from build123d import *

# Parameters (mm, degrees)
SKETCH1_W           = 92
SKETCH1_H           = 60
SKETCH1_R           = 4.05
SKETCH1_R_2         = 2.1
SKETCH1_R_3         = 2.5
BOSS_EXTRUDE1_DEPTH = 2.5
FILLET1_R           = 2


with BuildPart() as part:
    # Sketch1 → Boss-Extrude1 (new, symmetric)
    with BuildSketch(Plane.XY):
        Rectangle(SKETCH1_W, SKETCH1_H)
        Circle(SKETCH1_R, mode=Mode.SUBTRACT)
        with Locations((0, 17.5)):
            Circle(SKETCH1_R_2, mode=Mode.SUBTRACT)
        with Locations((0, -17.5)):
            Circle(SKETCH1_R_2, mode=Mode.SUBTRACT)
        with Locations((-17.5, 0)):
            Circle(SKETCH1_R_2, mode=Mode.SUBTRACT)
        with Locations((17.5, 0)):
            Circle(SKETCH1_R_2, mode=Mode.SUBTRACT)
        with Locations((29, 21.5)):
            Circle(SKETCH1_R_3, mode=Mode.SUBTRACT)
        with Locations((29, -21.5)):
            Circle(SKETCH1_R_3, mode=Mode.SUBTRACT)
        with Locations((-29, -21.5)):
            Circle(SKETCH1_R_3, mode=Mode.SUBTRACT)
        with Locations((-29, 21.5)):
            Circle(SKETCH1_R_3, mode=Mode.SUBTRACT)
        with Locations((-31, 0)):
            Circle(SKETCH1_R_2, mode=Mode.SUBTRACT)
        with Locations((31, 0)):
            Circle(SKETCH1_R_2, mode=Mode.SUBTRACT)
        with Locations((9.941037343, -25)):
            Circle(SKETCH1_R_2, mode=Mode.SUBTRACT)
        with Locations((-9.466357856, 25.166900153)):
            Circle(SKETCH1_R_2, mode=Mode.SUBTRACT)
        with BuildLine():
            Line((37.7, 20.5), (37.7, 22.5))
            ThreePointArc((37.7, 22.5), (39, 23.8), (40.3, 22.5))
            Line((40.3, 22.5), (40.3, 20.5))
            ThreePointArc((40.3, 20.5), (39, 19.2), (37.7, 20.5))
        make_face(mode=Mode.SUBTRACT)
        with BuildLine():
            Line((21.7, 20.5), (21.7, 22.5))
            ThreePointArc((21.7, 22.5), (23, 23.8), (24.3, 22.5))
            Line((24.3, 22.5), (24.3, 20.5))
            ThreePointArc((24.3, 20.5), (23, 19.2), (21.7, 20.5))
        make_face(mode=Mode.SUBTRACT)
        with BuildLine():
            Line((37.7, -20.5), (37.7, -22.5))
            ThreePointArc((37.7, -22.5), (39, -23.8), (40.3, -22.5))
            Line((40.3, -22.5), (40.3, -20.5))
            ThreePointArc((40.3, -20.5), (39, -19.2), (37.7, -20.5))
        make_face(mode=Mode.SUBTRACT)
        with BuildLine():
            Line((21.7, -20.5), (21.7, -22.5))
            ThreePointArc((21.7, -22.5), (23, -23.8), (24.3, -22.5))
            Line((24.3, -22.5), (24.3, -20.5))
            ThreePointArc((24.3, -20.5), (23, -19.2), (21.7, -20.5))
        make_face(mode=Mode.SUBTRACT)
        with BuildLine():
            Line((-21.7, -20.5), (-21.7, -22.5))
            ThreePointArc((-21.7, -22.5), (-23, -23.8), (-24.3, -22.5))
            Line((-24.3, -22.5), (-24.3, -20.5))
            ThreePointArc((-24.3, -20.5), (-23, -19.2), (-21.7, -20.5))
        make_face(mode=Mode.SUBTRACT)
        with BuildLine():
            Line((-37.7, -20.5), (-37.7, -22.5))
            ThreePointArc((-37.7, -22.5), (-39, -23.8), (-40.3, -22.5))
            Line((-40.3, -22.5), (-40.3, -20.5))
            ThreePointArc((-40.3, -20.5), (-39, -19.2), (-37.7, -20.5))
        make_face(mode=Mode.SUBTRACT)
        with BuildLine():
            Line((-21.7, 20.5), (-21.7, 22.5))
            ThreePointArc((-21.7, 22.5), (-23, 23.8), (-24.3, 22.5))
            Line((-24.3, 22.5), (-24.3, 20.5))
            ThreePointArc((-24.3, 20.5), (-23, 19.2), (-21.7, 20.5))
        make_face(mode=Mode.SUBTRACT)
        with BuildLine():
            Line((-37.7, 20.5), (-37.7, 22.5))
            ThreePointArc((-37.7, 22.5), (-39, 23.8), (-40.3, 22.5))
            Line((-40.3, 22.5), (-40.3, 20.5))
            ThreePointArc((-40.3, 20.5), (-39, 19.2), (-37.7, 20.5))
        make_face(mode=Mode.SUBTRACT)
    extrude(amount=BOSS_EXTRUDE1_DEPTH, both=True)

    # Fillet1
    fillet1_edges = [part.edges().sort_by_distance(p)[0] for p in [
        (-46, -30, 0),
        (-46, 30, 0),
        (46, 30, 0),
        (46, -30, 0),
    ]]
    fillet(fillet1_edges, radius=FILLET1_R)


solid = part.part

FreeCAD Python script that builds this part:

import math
import FreeCAD as App
import Part
import Sketcher


def edges_at(feature, points):
    """Names of the edges that pass closest to the given points."""
    edges = feature.Shape.Edges
    near = lambda p: min(range(len(edges)), key=lambda i: edges[i].distToShape(Part.Vertex(*p))[0])
    return sorted({f"Edge{near(p) + 1}" for p in points})


def add_polygon(sketch, points):
    """Adds a closed chain of lines whose ends are joined by coincident constraints."""
    first, n = sketch.GeometryCount, len(points)
    for a, b in zip(points, points[1:] + points[:1]):
        sketch.addGeometry(Part.LineSegment(App.Vector(*a, 0), App.Vector(*b, 0)), False)
    for i in range(n):
        sketch.addConstraint(Sketcher.Constraint("Coincident", first + i, 2, first + (i + 1) % n, 1))

doc = App.newDocument("Part")
body = doc.addObject("PartDesign::Body", "Body")

sketch1 = body.newObject("Sketcher::SketchObject", "Sketch")
sketch1.AttachmentSupport = (doc.getObject("XY_Plane"), [""])
sketch1.MapMode = "FlatFace"
add_polygon(sketch1, [(-46, 30), (-46, -30), (46, -30), (46, 30)])
sketch1.addGeometry(Part.ArcOfCircle(Part.Circle(App.Vector(-39, -20.5, 0), App.Vector(0, 0, 1), 1.3), math.radians(0), math.radians(180)), False)
sketch1.addGeometry(Part.LineSegment(App.Vector(-37.7, -20.5, 0), App.Vector(-37.7, -22.5, 0)), False)
sketch1.addGeometry(Part.ArcOfCircle(Part.Circle(App.Vector(-39, -22.5, 0), App.Vector(0, 0, 1), 1.3), math.radians(180), math.radians(360)), False)
sketch1.addGeometry(Part.LineSegment(App.Vector(-40.3, -22.5, 0), App.Vector(-40.3, -20.5, 0)), False)
sketch1.addGeometry(Part.Circle(App.Vector(-29, -21.5, 0), App.Vector(0, 0, 1), 2.5), False)
sketch1.addGeometry(Part.ArcOfCircle(Part.Circle(App.Vector(-23, -20.5, 0), App.Vector(0, 0, 1), 1.3), math.radians(0), math.radians(180)), False)
sketch1.addGeometry(Part.LineSegment(App.Vector(-21.7, -20.5, 0), App.Vector(-21.7, -22.5, 0)), False)
sketch1.addGeometry(Part.ArcOfCircle(Part.Circle(App.Vector(-23, -22.5, 0), App.Vector(0, 0, 1), 1.3), math.radians(180), math.radians(360)), False)
sketch1.addGeometry(Part.LineSegment(App.Vector(-24.3, -22.5, 0), App.Vector(-24.3, -20.5, 0)), False)
sketch1.addGeometry(Part.Circle(App.Vector(-31, 0, 0), App.Vector(0, 0, 1), 2.1), False)
sketch1.addGeometry(Part.Circle(App.Vector(-17.5, 0, 0), App.Vector(0, 0, 1), 2.1), False)
sketch1.addGeometry(Part.Circle(App.Vector(9.941037, -25, 0), App.Vector(0, 0, 1), 2.1), False)
sketch1.addGeometry(Part.Circle(App.Vector(0, -17.5, 0), App.Vector(0, 0, 1), 2.1), False)
sketch1.addGeometry(Part.LineSegment(App.Vector(21.7, -22.5, 0), App.Vector(21.7, -20.5, 0)), False)
sketch1.addGeometry(Part.ArcOfCircle(Part.Circle(App.Vector(23, -20.5, 0), App.Vector(0, 0, 1), 1.3), math.radians(0), math.radians(180)), False)
sketch1.addGeometry(Part.LineSegment(App.Vector(24.3, -20.5, 0), App.Vector(24.3, -22.5, 0)), False)
sketch1.addGeometry(Part.ArcOfCircle(Part.Circle(App.Vector(23, -22.5, 0), App.Vector(0, 0, 1), 1.3), math.radians(180), math.radians(360)), False)
sketch1.addGeometry(Part.Circle(App.Vector(29, -21.5, 0), App.Vector(0, 0, 1), 2.5), False)
sketch1.addGeometry(Part.LineSegment(App.Vector(37.7, -22.5, 0), App.Vector(37.7, -20.5, 0)), False)
sketch1.addGeometry(Part.ArcOfCircle(Part.Circle(App.Vector(39, -20.5, 0), App.Vector(0, 0, 1), 1.3), math.radians(0), math.radians(180)), False)
sketch1.addGeometry(Part.LineSegment(App.Vector(40.3, -20.5, 0), App.Vector(40.3, -22.5, 0)), False)
sketch1.addGeometry(Part.ArcOfCircle(Part.Circle(App.Vector(39, -22.5, 0), App.Vector(0, 0, 1), 1.3), math.radians(180), math.radians(360)), False)
sketch1.addGeometry(Part.Circle(App.Vector(0, 0, 0), App.Vector(0, 0, 1), 4.05), False)
sketch1.addGeometry(Part.Circle(App.Vector(17.5, 0, 0), App.Vector(0, 0, 1), 2.1), False)
sketch1.addGeometry(Part.Circle(App.Vector(31, 0, 0), App.Vector(0, 0, 1), 2.1), False)
sketch1.addGeometry(Part.LineSegment(App.Vector(-37.7, 22.5, 0), App.Vector(-37.7, 20.5, 0)), False)
sketch1.addGeometry(Part.ArcOfCircle(Part.Circle(App.Vector(-39, 20.5, 0), App.Vector(0, 0, 1), 1.3), math.radians(180), math.radians(360)), False)
sketch1.addGeometry(Part.LineSegment(App.Vector(-40.3, 20.5, 0), App.Vector(-40.3, 22.5, 0)), False)
sketch1.addGeometry(Part.ArcOfCircle(Part.Circle(App.Vector(-39, 22.5, 0), App.Vector(0, 0, 1), 1.3), math.radians(0), math.radians(180)), False)
sketch1.addGeometry(Part.Circle(App.Vector(-29, 21.5, 0), App.Vector(0, 0, 1), 2.5), False)
sketch1.addGeometry(Part.LineSegment(App.Vector(-21.7, 22.5, 0), App.Vector(-21.7, 20.5, 0)), False)
sketch1.addGeometry(Part.ArcOfCircle(Part.Circle(App.Vector(-23, 20.5, 0), App.Vector(0, 0, 1), 1.3), math.radians(180), math.radians(360)), False)
sketch1.addGeometry(Part.LineSegment(App.Vector(-24.3, 20.5, 0), App.Vector(-24.3, 22.5, 0)), False)
sketch1.addGeometry(Part.ArcOfCircle(Part.Circle(App.Vector(-23, 22.5, 0), App.Vector(0, 0, 1), 1.3), math.radians(0), math.radians(180)), False)
sketch1.addGeometry(Part.Circle(App.Vector(-9.466358, 25.1669, 0), App.Vector(0, 0, 1), 2.1), False)
sketch1.addGeometry(Part.Circle(App.Vector(0, 17.5, 0), App.Vector(0, 0, 1), 2.1), False)
sketch1.addGeometry(Part.ArcOfCircle(Part.Circle(App.Vector(23, 20.5, 0), App.Vector(0, 0, 1), 1.3), math.radians(180), math.radians(360)), False)
sketch1.addGeometry(Part.LineSegment(App.Vector(21.7, 20.5, 0), App.Vector(21.7, 22.5, 0)), False)
sketch1.addGeometry(Part.ArcOfCircle(Part.Circle(App.Vector(23, 22.5, 0), App.Vector(0, 0, 1), 1.3), math.radians(0), math.radians(180)), False)
sketch1.addGeometry(Part.LineSegment(App.Vector(24.3, 22.5, 0), App.Vector(24.3, 20.5, 0)), False)
sketch1.addGeometry(Part.Circle(App.Vector(29, 21.5, 0), App.Vector(0, 0, 1), 2.5), False)
sketch1.addGeometry(Part.ArcOfCircle(Part.Circle(App.Vector(39, 20.5, 0), App.Vector(0, 0, 1), 1.3), math.radians(180), math.radians(360)), False)
sketch1.addGeometry(Part.LineSegment(App.Vector(37.7, 20.5, 0), App.Vector(37.7, 22.5, 0)), False)
sketch1.addGeometry(Part.ArcOfCircle(Part.Circle(App.Vector(39, 22.5, 0), App.Vector(0, 0, 1), 1.3), math.radians(0), math.radians(180)), False)
sketch1.addGeometry(Part.LineSegment(App.Vector(40.3, 22.5, 0), App.Vector(40.3, 20.5, 0)), False)
sketch1.addConstraint([
    Sketcher.Constraint("Tangent", 4, 1, 5, 1),
    Sketcher.Constraint("Tangent", 5, 2, 6, 2),
    Sketcher.Constraint("Tangent", 6, 1, 7, 1),
    Sketcher.Constraint("Tangent", 7, 2, 4, 2),
    Sketcher.Constraint("Tangent", 9, 1, 10, 1),
    Sketcher.Constraint("Tangent", 10, 2, 11, 2),
    Sketcher.Constraint("Tangent", 11, 1, 12, 1),
    Sketcher.Constraint("Tangent", 12, 2, 9, 2),
    Sketcher.Constraint("Tangent", 17, 2, 18, 2),
    Sketcher.Constraint("Tangent", 18, 1, 19, 1),
    Sketcher.Constraint("Tangent", 19, 2, 20, 2),
    Sketcher.Constraint("Tangent", 20, 1, 17, 1),
    Sketcher.Constraint("Tangent", 22, 2, 23, 2),
    Sketcher.Constraint("Tangent", 23, 1, 24, 1),
    Sketcher.Constraint("Tangent", 24, 2, 25, 2),
    Sketcher.Constraint("Tangent", 25, 1, 22, 1),
    Sketcher.Constraint("Tangent", 29, 2, 30, 2),
    Sketcher.Constraint("Tangent", 30, 1, 31, 1),
    Sketcher.Constraint("Tangent", 31, 2, 32, 2),
    Sketcher.Constraint("Tangent", 32, 1, 29, 1),
    Sketcher.Constraint("Tangent", 34, 2, 35, 2),
    Sketcher.Constraint("Tangent", 35, 1, 36, 1),
    Sketcher.Constraint("Tangent", 36, 2, 37, 2),
    Sketcher.Constraint("Tangent", 37, 1, 34, 1),
    Sketcher.Constraint("Tangent", 40, 1, 41, 1),
    Sketcher.Constraint("Tangent", 41, 2, 42, 2),
    Sketcher.Constraint("Tangent", 42, 1, 43, 1),
    Sketcher.Constraint("Tangent", 43, 2, 40, 2),
    Sketcher.Constraint("Tangent", 45, 1, 46, 1),
    Sketcher.Constraint("Tangent", 46, 2, 47, 2),
    Sketcher.Constraint("Tangent", 47, 1, 48, 1),
    Sketcher.Constraint("Tangent", 48, 2, 45, 2),
    Sketcher.Constraint("Vertical", 0),
    Sketcher.Constraint("Horizontal", 1),
    Sketcher.Constraint("Vertical", 2),
    Sketcher.Constraint("Horizontal", 3),
    Sketcher.Constraint("Vertical", 5),
    Sketcher.Constraint("Vertical", 7),
    Sketcher.Constraint("Vertical", 10),
    Sketcher.Constraint("Vertical", 12),
    Sketcher.Constraint("Vertical", 17),
    Sketcher.Constraint("Vertical", 19),
    Sketcher.Constraint("Vertical", 22),
    Sketcher.Constraint("Vertical", 24),
    Sketcher.Constraint("Vertical", 29),
    Sketcher.Constraint("Vertical", 31),
    Sketcher.Constraint("Vertical", 34),
    Sketcher.Constraint("Vertical", 36),
    Sketcher.Constraint("Vertical", 41),
    Sketcher.Constraint("Vertical", 43),
    Sketcher.Constraint("Vertical", 46),
    Sketcher.Constraint("Vertical", 48),
    Sketcher.Constraint("Coincident", 26, 3, -1, 1),
    Sketcher.Constraint("Equal", 6, 9),
    Sketcher.Constraint("Equal", 13, 14),
    Sketcher.Constraint("Equal", 14, 15),
    Sketcher.Constraint("Equal", 15, 16),
    Sketcher.Constraint("Equal", 11, 18),
    Sketcher.Constraint("Equal", 8, 21),
    Sketcher.Constraint("Equal", 20, 23),
    Sketcher.Constraint("Equal", 16, 27),
    Sketcher.Constraint("Equal", 27, 28),
    Sketcher.Constraint("Equal", 25, 30),
    Sketcher.Constraint("Equal", 21, 33),
    Sketcher.Constraint("Equal", 32, 35),
    Sketcher.Constraint("Equal", 28, 38),
    Sketcher.Constraint("Equal", 38, 39),
    Sketcher.Constraint("Equal", 37, 40),
    Sketcher.Constraint("Equal", 33, 44),
    Sketcher.Constraint("Equal", 42, 45),
    Sketcher.Constraint("Symmetric", 14, 3, 27, 3, -1, 1),
    Sketcher.Constraint("Symmetric", 13, 3, 28, 3, -1, 1),
    Sketcher.Constraint("Symmetric", 23, 3, 30, 3, -1, 1),
    Sketcher.Constraint("Symmetric", 21, 3, 33, 3, -1, 1),
    Sketcher.Constraint("Symmetric", 18, 3, 35, 3, -1, 1),
    Sketcher.Constraint("Symmetric", 16, 3, 39, 3, -1, 1),
    Sketcher.Constraint("Symmetric", 9, 3, 40, 3, -1, 1),
    Sketcher.Constraint("Symmetric", 8, 3, 44, 3, -1, 1),
    Sketcher.Constraint("Symmetric", 4, 3, 45, 3, -1, 1),
    Sketcher.Constraint("Symmetric", 0, 2, 2, 2, -1, 1),
    Sketcher.Constraint("Symmetric", 9, 3, 18, 3, -2),
    Sketcher.Constraint("Symmetric", 8, 3, 21, 3, -2),
    Sketcher.Constraint("Symmetric", 4, 3, 23, 3, -2),
    Sketcher.Constraint("PointOnObject", 13, 3, -1),
    Sketcher.Constraint("PointOnObject", 14, 3, -1),
    Sketcher.Constraint("PointOnObject", 16, 3, -2),
    Sketcher.Constraint("Horizontal", 4, 3, 9, 3),
    Sketcher.Constraint("Horizontal", 6, 3, 11, 3),
    Sketcher.Constraint("Horizontal", 11, 3, 20, 3),
    Sketcher.Constraint("Horizontal", 20, 3, 25, 3),
    Sketcher.Constraint("Horizontal", 32, 3, 37, 3),
    Sketcher.Constraint("Horizontal", 37, 3, 42, 3),
    Sketcher.Constraint("Horizontal", 42, 3, 47, 3),
    Sketcher.Constraint("Equal", 24, 29),
    Sketcher.Constraint("Diameter", 8, 5.0),
    Sketcher.Constraint("Diameter", 13, 4.2),
    Sketcher.Constraint("Diameter", 26, 8.1),
    Sketcher.Constraint("Radius", 4, 1.3),
    Sketcher.Constraint("DistanceX", 1, 1, 1, 2, 92.0),
    Sketcher.Constraint("DistanceY", 0, 2, 0, 1, 60.0),
    Sketcher.Constraint("DistanceY", 5, 2, 5, 1, 2.0),
    Sketcher.Constraint("DistanceX", 4, 3, -1, 1, 39.0),
    Sketcher.Constraint("DistanceX", 8, 3, -1, 1, 29.0),
    Sketcher.Constraint("DistanceX", 9, 3, -1, 1, 23.0),
    Sketcher.Constraint("DistanceX", 13, 3, -1, 1, 31.0),
    Sketcher.Constraint("DistanceY", 15, 3, -1, 1, 25.0),
    Sketcher.Constraint("DistanceY", 4, 3, -1, 1, 20.5),
    Sketcher.Constraint("DistanceY", 8, 3, -1, 1, 21.5),
    Sketcher.Constraint("DistanceX", 14, 3, -1, 1, 17.5),
    Sketcher.Constraint("DistanceY", 16, 3, -1, 1, 17.5),
    Sketcher.Constraint("DistanceY", -1, 1, 38, 3, 25.1669),
    Sketcher.Constraint("DistanceX", -1, 1, 15, 3, 9.941037),
    Sketcher.Constraint("DistanceX", 38, 3, -1, 1, 9.466358),
])
pad1 = body.newObject("PartDesign::Pad", "Pad")
pad1.Profile = sketch1
pad1.Length = 5
pad1.Midplane = True
doc.recompute()

fillet = body.newObject("PartDesign::Fillet", "Fillet")
fillet.Base = (pad1, edges_at(pad1, [
    (-46, -30, 0),
    (-46, 30, 0),
    (46, 30, 0),
    (46, -30, 0),
]))
fillet.Radius = 2

doc.recompute()
